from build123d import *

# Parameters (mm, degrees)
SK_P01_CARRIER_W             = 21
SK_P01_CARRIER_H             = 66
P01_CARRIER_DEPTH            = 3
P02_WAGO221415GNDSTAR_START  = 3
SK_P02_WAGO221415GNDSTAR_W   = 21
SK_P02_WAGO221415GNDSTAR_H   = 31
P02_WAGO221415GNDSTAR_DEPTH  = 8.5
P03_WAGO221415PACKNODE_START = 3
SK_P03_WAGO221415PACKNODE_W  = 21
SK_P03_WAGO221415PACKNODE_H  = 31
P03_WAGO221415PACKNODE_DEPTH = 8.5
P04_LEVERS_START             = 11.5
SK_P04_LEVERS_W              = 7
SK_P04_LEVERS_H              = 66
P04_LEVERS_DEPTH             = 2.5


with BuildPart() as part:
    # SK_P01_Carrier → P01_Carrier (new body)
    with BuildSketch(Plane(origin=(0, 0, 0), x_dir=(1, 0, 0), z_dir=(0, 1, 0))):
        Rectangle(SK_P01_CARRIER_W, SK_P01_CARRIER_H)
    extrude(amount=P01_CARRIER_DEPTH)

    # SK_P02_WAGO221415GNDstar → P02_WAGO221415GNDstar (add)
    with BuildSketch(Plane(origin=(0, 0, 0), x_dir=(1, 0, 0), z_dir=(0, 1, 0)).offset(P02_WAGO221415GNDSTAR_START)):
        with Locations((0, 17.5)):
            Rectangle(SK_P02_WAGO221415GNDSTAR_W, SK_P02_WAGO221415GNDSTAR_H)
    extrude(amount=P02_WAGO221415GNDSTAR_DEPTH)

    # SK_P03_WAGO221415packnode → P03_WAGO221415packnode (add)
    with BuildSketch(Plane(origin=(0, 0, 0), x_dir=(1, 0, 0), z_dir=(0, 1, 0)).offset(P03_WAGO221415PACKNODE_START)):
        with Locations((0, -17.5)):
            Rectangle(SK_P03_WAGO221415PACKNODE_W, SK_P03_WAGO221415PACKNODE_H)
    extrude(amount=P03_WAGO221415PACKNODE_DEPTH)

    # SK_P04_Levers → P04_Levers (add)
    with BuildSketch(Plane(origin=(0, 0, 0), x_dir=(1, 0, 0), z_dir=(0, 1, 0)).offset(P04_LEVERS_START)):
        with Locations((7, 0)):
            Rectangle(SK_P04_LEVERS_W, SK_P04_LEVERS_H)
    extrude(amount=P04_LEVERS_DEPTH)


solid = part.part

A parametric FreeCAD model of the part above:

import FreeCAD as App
import Part
import Sketcher
Q = App.Units.Quantity

doc = App.newDocument("Part")
body = doc.addObject("PartDesign::Body", "Body")

# Sketch on XZ plane
sketch1 = body.newObject("Sketcher::SketchObject", "Sketch")
sketch1.AttachmentSupport = (doc.getObject("XZ_Plane"), [""])
sketch1.MapMode = "FlatFace"
sketch1.addGeometry(Part.LineSegment(App.Vector(-10.5, -33, 0), App.Vector(-10.5, 33, 0)), False)
sketch1.addGeometry(Part.LineSegment(App.Vector(-10.5, 33, 0), App.Vector(10.5, 33, 0)), False)
sketch1.addGeometry(Part.LineSegment(App.Vector(10.5, 33, 0), App.Vector(10.5, -33, 0)), False)
sketch1.addGeometry(Part.LineSegment(App.Vector(10.5, -33, 0), App.Vector(-10.5, -33, 0)), False)
sketch1.addConstraint(Sketcher.Constraint("Coincident", 0, 2, 1, 1))
sketch1.addConstraint(Sketcher.Constraint("Coincident", 1, 2, 2, 1))
sketch1.addConstraint(Sketcher.Constraint("Coincident", 2, 2, 3, 1))
sketch1.addConstraint(Sketcher.Constraint("Coincident", 3, 2, 0, 1))
sketch1.addConstraint(Sketcher.Constraint("Vertical", 0))
sketch1.addConstraint(Sketcher.Constraint("Horizontal", 1))
sketch1.addConstraint(Sketcher.Constraint("Vertical", 2))
sketch1.addConstraint(Sketcher.Constraint("Horizontal", 3))
sketch1.addConstraint(Sketcher.Constraint("Symmetric", 0, 2, 2, 2, -1, 1))
sketch1.addConstraint(Sketcher.Constraint("DistanceX", 1, 1, 1, 2, Q("21 mm")))
sketch1.addConstraint(Sketcher.Constraint("DistanceY", 0, 1, 0, 2, Q("66 mm")))
pad1 = body.newObject("PartDesign::Pad", "Pad")
pad1.Profile = sketch1
pad1.Length = 3
pad1.Reversed = True

# Sketch on XZ plane
sketch2 = body.newObject("Sketcher::SketchObject", "Sketch001")
sketch2.AttachmentSupport = (doc.getObject("XZ_Plane"), [""])
sketch2.MapMode = "FlatFace"
sketch2.AttachmentOffset = App.Placement(App.Vector(0, 0, -3), App.Rotation())
sketch2.addGeometry(Part.LineSegment(App.Vector(-10.5, -33, 0), App.Vector(-10.5, -2, 0)), False)
sketch2.addGeometry(Part.LineSegment(App.Vector(-10.5, -2, 0), App.Vector(10.5, -2, 0)), False)
sketch2.addGeometry(Part.LineSegment(App.Vector(10.5, -2, 0), App.Vector(10.5, -33, 0)), False)
sketch2.addGeometry(Part.LineSegment(App.Vector(10.5, -33, 0), App.Vector(-10.5, -33, 0)), False)
sketch2.addConstraint(Sketcher.Constraint("Coincident", 0, 2, 1, 1))
sketch2.addConstraint(Sketcher.Constraint("Coincident", 1, 2, 2, 1))
sketch2.addConstraint(Sketcher.Constraint("Coincident", 2, 2, 3, 1))
sketch2.addConstraint(Sketcher.Constraint("Coincident", 3, 2, 0, 1))
sketch2.addConstraint(Sketcher.Constraint("Vertical", 0))
sketch2.addConstraint(Sketcher.Constraint("Horizontal", 1))
sketch2.addConstraint(Sketcher.Constraint("Vertical", 2))
sketch2.addConstraint(Sketcher.Constraint("Horizontal", 3))
sketch2.addConstraint(Sketcher.Constraint("DistanceX", 1, 1, 1, 2, Q("21 mm")))
sketch2.addConstraint(Sketcher.Constraint("DistanceY", 0, 1, 0, 2, Q("31 mm")))
sketch2.addConstraint(Sketcher.Constraint("DistanceY", 0, 2, -1, 1, Q("2 mm")))
sketch2.addConstraint(Sketcher.Constraint("DistanceX", 0, 2, -1, 1, Q("10.5 mm")))
pad2 = body.newObject("PartDesign::Pad", "Pad001")
pad2.Profile = sketch2
pad2.Length = 8.5
pad2.Reversed = True

# Sketch on XZ plane
sketch3 = body.newObject("Sketcher::SketchObject", "Sketch002")
sketch3.AttachmentSupport = (doc.getObject("XZ_Plane"), [""])
sketch3.MapMode = "FlatFace"
sketch3.AttachmentOffset = App.Placement(App.Vector(0, 0, -3), App.Rotation())
sketch3.addGeometry(Part.LineSegment(App.Vector(-10.5, 2, 0), App.Vector(-10.5, 33, 0)), False)
sketch3.addGeometry(Part.LineSegment(App.Vector(-10.5, 33, 0), App.Vector(10.5, 33, 0)), False)
sketch3.addGeometry(Part.LineSegment(App.Vector(10.5, 33, 0), App.Vector(10.5, 2, 0)), False)
sketch3.addGeometry(Part.LineSegment(App.Vector(10.5, 2, 0), App.Vector(-10.5, 2, 0)), False)
sketch3.addConstraint(Sketcher.Constraint("Coincident", 0, 2, 1, 1))
sketch3.addConstraint(Sketcher.Constraint("Coincident", 1, 2, 2, 1))
sketch3.addConstraint(Sketcher.Constraint("Coincident", 2, 2, 3, 1))
sketch3.addConstraint(Sketcher.Constraint("Coincident", 3, 2, 0, 1))
sketch3.addConstraint(Sketcher.Constraint("Vertical", 0))
sketch3.addConstraint(Sketcher.Constraint("Horizontal", 1))
sketch3.addConstraint(Sketcher.Constraint("Vertical", 2))
sketch3.addConstraint(Sketcher.Constraint("Horizontal", 3))
sketch3.addConstraint(Sketcher.Constraint("DistanceX", 1, 1, 1, 2, Q("21 mm")))
sketch3.addConstraint(Sketcher.Constraint("DistanceY", 0, 1, 0, 2, Q("31 mm")))
sketch3.addConstraint(Sketcher.Constraint("DistanceY", -1, 1, 0, 2, Q("33 mm")))
sketch3.addConstraint(Sketcher.Constraint("DistanceX", 0, 2, -1, 1, Q("10.5 mm")))
pad3 = body.newObject("PartDesign::Pad", "Pad002")
pad3.Profile = sketch3
pad3.Length = 8.5
pad3.Reversed = True

# Sketch on XZ plane
sketch4 = body.newObject("Sketcher::SketchObject", "Sketch003")
sketch4.AttachmentSupport = (doc.getObject("XZ_Plane"), [""])
sketch4.MapMode = "FlatFace"
sketch4.AttachmentOffset = App.Placement(App.Vector(0, 0, -11.5), App.Rotation())
sketch4.addGeometry(Part.LineSegment(App.Vector(3.5, -33, 0), App.Vector(3.5, 33, 0)), False)
sketch4.addGeometry(Part.LineSegment(App.Vector(3.5, 33, 0), App.Vector(10.5, 33, 0)), False)
sketch4.addGeometry(Part.LineSegment(App.Vector(10.5, 33, 0), App.Vector(10.5, -33, 0)), False)
sketch4.addGeometry(Part.LineSegment(App.Vector(10.5, -33, 0), App.Vector(3.5, -33, 0)), False)
sketch4.addConstraint(Sketcher.Constraint("Coincident", 0, 2, 1, 1))
sketch4.addConstraint(Sketcher.Constraint("Coincident", 1, 2, 2, 1))
sketch4.addConstraint(Sketcher.Constraint("Coincident", 2, 2, 3, 1))
sketch4.addConstraint(Sketcher.Constraint("Coincident", 3, 2, 0, 1))
sketch4.addConstraint(Sketcher.Constraint("Vertical", 0))
sketch4.addConstraint(Sketcher.Constraint("Horizontal", 1))
sketch4.addConstraint(Sketcher.Constraint("Vertical", 2))
sketch4.addConstraint(Sketcher.Constraint("Horizontal", 3))
sketch4.addConstraint(Sketcher.Constraint("DistanceX", 1, 1, 1, 2, Q("7 mm")))
sketch4.addConstraint(Sketcher.Constraint("DistanceY", 0, 1, 0, 2, Q("66 mm")))
sketch4.addConstraint(Sketcher.Constraint("DistanceY", -1, 1, 0, 2, Q("33 mm")))
sketch4.addConstraint(Sketcher.Constraint("DistanceX", -1, 1, 0, 2, Q("3.5 mm")))
pad4 = body.newObject("PartDesign::Pad", "Pad003")
pad4.Profile = sketch4
pad4.Length = 2.5
pad4.Reversed = True

doc.recompute()
